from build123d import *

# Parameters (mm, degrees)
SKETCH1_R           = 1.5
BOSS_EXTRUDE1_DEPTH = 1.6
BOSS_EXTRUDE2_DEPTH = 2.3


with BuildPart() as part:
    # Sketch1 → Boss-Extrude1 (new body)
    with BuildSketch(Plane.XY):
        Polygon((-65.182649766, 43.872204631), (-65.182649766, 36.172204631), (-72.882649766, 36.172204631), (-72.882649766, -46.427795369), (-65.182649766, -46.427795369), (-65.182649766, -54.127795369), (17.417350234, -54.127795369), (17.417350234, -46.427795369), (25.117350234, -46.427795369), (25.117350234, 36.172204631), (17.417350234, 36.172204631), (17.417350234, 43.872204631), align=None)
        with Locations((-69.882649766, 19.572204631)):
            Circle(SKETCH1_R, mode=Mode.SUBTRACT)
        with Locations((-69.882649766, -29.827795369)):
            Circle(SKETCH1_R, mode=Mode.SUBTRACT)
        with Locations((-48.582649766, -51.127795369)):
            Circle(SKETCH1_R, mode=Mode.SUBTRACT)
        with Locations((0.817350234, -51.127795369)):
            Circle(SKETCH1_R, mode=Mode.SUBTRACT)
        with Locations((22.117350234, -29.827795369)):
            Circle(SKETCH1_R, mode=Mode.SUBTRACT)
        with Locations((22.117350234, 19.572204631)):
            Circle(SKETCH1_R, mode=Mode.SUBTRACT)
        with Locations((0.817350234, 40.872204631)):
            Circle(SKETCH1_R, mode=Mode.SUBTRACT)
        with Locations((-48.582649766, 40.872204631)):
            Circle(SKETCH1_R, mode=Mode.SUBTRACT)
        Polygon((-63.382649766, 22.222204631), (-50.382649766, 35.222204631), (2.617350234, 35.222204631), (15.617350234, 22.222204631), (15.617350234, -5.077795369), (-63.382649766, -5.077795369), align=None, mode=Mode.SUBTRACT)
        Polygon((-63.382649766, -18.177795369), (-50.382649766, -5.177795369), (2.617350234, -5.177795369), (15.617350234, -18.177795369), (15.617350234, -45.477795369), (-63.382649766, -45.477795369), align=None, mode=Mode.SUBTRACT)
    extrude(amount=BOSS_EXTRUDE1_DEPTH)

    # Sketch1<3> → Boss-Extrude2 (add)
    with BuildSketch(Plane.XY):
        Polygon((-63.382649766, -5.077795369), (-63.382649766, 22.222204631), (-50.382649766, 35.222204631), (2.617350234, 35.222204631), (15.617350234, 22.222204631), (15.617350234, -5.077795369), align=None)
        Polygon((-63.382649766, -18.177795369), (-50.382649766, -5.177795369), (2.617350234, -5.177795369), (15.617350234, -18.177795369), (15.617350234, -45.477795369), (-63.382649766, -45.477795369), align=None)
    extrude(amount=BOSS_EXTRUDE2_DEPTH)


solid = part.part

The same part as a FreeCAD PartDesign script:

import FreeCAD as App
import Part
import Sketcher

V = App.Vector

doc = App.newDocument("Part")
body = doc.addObject("PartDesign::Body", "Body")

# Sketch on XY plane
sketch1 = body.newObject("Sketcher::SketchObject", "Sketch")
sketch1.AttachmentSupport = (doc.getObject("XY_Plane"), [""])
sketch1.MapMode = "FlatFace"
sketch1.addGeometry(Part.LineSegment(V(-65.18265, 43.872205, 0), V(-65.18265, 36.172205, 0)), False)
sketch1.addGeometry(Part.LineSegment(V(-65.18265, 36.172205, 0), V(-72.88265, 36.172205, 0)), False)
sketch1.addGeometry(Part.LineSegment(V(-72.88265, 36.172205, 0), V(-72.88265, -46.427795, 0)), False)
sketch1.addGeometry(Part.LineSegment(V(-72.88265, -46.427795, 0), V(-65.18265, -46.427795, 0)), False)
sketch1.addGeometry(Part.LineSegment(V(-65.18265, -46.427795, 0), V(-65.18265, -54.127795, 0)), False)
sketch1.addGeometry(Part.LineSegment(V(-65.18265, -54.127795, 0), V(17.41735, -54.127795, 0)), False)
sketch1.addGeometry(Part.LineSegment(V(17.41735, -54.127795, 0), V(17.41735, -46.427795, 0)), False)
sketch1.addGeometry(Part.LineSegment(V(17.41735, -46.427795, 0), V(25.11735, -46.427795, 0)), False)
sketch1.addGeometry(Part.LineSegment(V(25.11735, -46.427795, 0), V(25.11735, 36.172205, 0)), False)
sketch1.addGeometry(Part.LineSegment(V(25.11735, 36.172205, 0), V(17.41735, 36.172205, 0)), False)
sketch1.addGeometry(Part.LineSegment(V(17.41735, 36.172205, 0), V(17.41735, 43.872205, 0)), False)
sketch1.addGeometry(Part.LineSegment(V(17.41735, 43.872205, 0), V(-65.18265, 43.872205, 0)), False)
sketch1.addGeometry(Part.Circle(V(-48.58265, -51.127795, 0), V(0, 0, 1), 1.5), False)
sketch1.addGeometry(Part.Circle(V(-69.88265, -29.827795, 0), V(0, 0, 1), 1.5), False)
sketch1.addGeometry(Part.Circle(V(0.81735, -51.127795, 0), V(0, 0, 1), 1.5), False)
sketch1.addGeometry(Part.Circle(V(22.11735, -29.827795, 0), V(0, 0, 1), 1.5), False)
sketch1.addGeometry(Part.LineSegment(V(-63.38265, -45.477795, 0), V(-63.38265, -18.177795, 0)), False)
sketch1.addGeometry(Part.LineSegment(V(-63.38265, -18.177795, 0), V(-50.38265, -5.177795, 0)), False)
sketch1.addGeometry(Part.LineSegment(V(-50.38265, -5.177795, 0), V(2.61735, -5.177795, 0)), False)
sketch1.addGeometry(Part.LineSegment(V(2.61735, -5.177795, 0), V(15.61735, -18.177795, 0)), False)
sketch1.addGeometry(Part.LineSegment(V(15.61735, -18.177795, 0), V(15.61735, -45.477795, 0)), False)
sketch1.addGeometry(Part.LineSegment(V(15.61735, -45.477795, 0), V(-63.38265, -45.477795, 0)), False)
sketch1.addGeometry(Part.Circle(V(-69.88265, 19.572205, 0), V(0, 0, 1), 1.5), False)
sketch1.addGeometry(Part.Circle(V(-48.58265, 40.872205, 0), V(0, 0, 1), 1.5), False)
sketch1.addGeometry(Part.LineSegment(V(-63.38265, -5.077795, 0), V(-63.38265, 22.222205, 0)), False)
sketch1.addGeometry(Part.LineSegment(V(-63.38265, 22.222205, 0), V(-50.38265, 35.222205, 0)), False)
sketch1.addGeometry(Part.LineSegment(V(-50.38265, 35.222205, 0), V(2.61735, 35.222205, 0)), False)
sketch1.addGeometry(Part.LineSegment(V(2.61735, 35.222205, 0), V(15.61735, 22.222205, 0)), False)
sketch1.addGeometry(Part.LineSegment(V(15.61735, 22.222205, 0), V(15.61735, -5.077795, 0)), False)
sketch1.addGeometry(Part.LineSegment(V(15.61735, -5.077795, 0), V(-63.38265, -5.077795, 0)), False)
sketch1.addGeometry(Part.Circle(V(22.11735, 19.572205, 0), V(0, 0, 1), 1.5), False)
sketch1.addGeometry(Part.Circle(V(0.81735, 40.872205, 0), V(0, 0, 1), 1.5), False)
sketch1.addConstraint(Sketcher.Constraint("Coincident", 0, 2, 1, 1))
sketch1.addConstraint(Sketcher.Constraint("Coincident", 1, 2, 2, 1))
sketch1.addConstraint(Sketcher.Constraint("Coincident", 2, 2, 3, 1))
sketch1.addConstraint(Sketcher.Constraint("Coincident", 3, 2, 4, 1))
sketch1.addConstraint(Sketcher.Constraint("Coincident", 4, 2, 5, 1))
sketch1.addConstraint(Sketcher.Constraint("Coincident", 5, 2, 6, 1))
sketch1.addConstraint(Sketcher.Constraint("Coincident", 6, 2, 7, 1))
sketch1.addConstraint(Sketcher.Constraint("Coincident", 7, 2, 8, 1))
sketch1.addConstraint(Sketcher.Constraint("Coincident", 8, 2, 9, 1))
sketch1.addConstraint(Sketcher.Constraint("Coincident", 9, 2, 10, 1))
sketch1.addConstraint(Sketcher.Constraint("Coincident", 10, 2, 11, 1))
sketch1.addConstraint(Sketcher.Constraint("Coincident", 11, 2, 0, 1))
sketch1.addConstraint(Sketcher.Constraint("Coincident", 16, 2, 17, 1))
sketch1.addConstraint(Sketcher.Constraint("Coincident", 17, 2, 18, 1))
sketch1.addConstraint(Sketcher.Constraint("Coincident", 18, 2, 19, 1))
sketch1.addConstraint(Sketcher.Constraint("Coincident", 19, 2, 20, 1))
sketch1.addConstraint(Sketcher.Constraint("Coincident", 20, 2, 21, 1))
sketch1.addConstraint(Sketcher.Constraint("Coincident", 21, 2, 16, 1))
sketch1.addConstraint(Sketcher.Constraint("Coincident", 24, 2, 25, 1))
sketch1.addConstraint(Sketcher.Constraint("Coincident", 25, 2, 26, 1))
sketch1.addConstraint(Sketcher.Constraint("Coincident", 26, 2, 27, 1))
sketch1.addConstraint(Sketcher.Constraint("Coincident", 27, 2, 28, 1))
sketch1.addConstraint(Sketcher.Constraint("Coincident", 28, 2, 29, 1))
sketch1.addConstraint(Sketcher.Constraint("Coincident", 29, 2, 24, 1))
sketch1.addConstraint(Sketcher.Constraint("Vertical", 0))
sketch1.addConstraint(Sketcher.Constraint("Horizontal", 1))
sketch1.addConstraint(Sketcher.Constraint("Vertical", 2))
sketch1.addConstraint(Sketcher.Constraint("Horizontal", 3))
sketch1.addConstraint(Sketcher.Constraint("Vertical", 4))
sketch1.addConstraint(Sketcher.Constraint("Horizontal", 5))
sketch1.addConstraint(Sketcher.Constraint("Vertical", 6))
sketch1.addConstraint(Sketcher.Constraint("Horizontal", 7))
sketch1.addConstraint(Sketcher.Constraint("Vertical", 8))
sketch1.addConstraint(Sketcher.Constraint("Horizontal", 9))
sketch1.addConstraint(Sketcher.Constraint("Vertical", 10))
sketch1.addConstraint(Sketcher.Constraint("Horizontal", 11))
sketch1.addConstraint(Sketcher.Constraint("Vertical", 16))
sketch1.addConstraint(Sketcher.Constraint("Horizontal", 18))
sketch1.addConstraint(Sketcher.Constraint("Vertical", 20))
sketch1.addConstraint(Sketcher.Constraint("Horizontal", 21))
sketch1.addConstraint(Sketcher.Constraint("Vertical", 24))
sketch1.addConstraint(Sketcher.Constraint("Horizontal", 26))
sketch1.addConstraint(Sketcher.Constraint("Vertical", 28))
sketch1.addConstraint(Sketcher.Constraint("Horizontal", 29))
sketch1.addConstraint(Sketcher.Constraint("Equal", 12, 13))
sketch1.addConstraint(Sketcher.Constraint("Equal", 13, 14))
sketch1.addConstraint(Sketcher.Constraint("Equal", 14, 15))
sketch1.addConstraint(Sketcher.Constraint("Equal", 15, 22))
sketch1.addConstraint(Sketcher.Constraint("Equal", 22, 23))
sketch1.addConstraint(Sketcher.Constraint("Equal", 23, 30))
sketch1.addConstraint(Sketcher.Constraint("Equal", 30, 31))
sketch1.addConstraint(Sketcher.Constraint("Perpendicular", 17, 19))
sketch1.addConstraint(Sketcher.Constraint("Perpendicular", 19, 25))
sketch1.addConstraint(Sketcher.Constraint("Perpendicular", 25, 27))
sketch1.addConstraint(Sketcher.Constraint("Horizontal", 12, 3, 14, 3))
sketch1.addConstraint(Sketcher.Constraint("Horizontal", 13, 3, 15, 3))
sketch1.addConstraint(Sketcher.Constraint("Horizontal", 22, 3, 30, 3))
sketch1.addConstraint(Sketcher.Constraint("Horizontal", 23, 3, 31, 3))
sketch1.addConstraint(Sketcher.Constraint("Horizontal", 3, 2, 6, 2))
sketch1.addConstraint(Sketcher.Constraint("Horizontal", 1, 2, 8, 2))
sketch1.addConstraint(Sketcher.Constraint("Horizontal", 16, 2, 19, 2))
sketch1.addConstraint(Sketcher.Constraint("Horizontal", 24, 2, 27, 2))
sketch1.addConstraint(Sketcher.Constraint("Vertical", 13, 3, 22, 3))
sketch1.addConstraint(Sketcher.Constraint("Vertical", 12, 3, 23, 3))
sketch1.addConstraint(Sketcher.Constraint("Vertical", 15, 3, 30, 3))
sketch1.addConstraint(Sketcher.Constraint("Vertical", 14, 3, 31, 3))
sketch1.addConstraint(Sketcher.Constraint("Vertical", 0, 2, 3, 2))
sketch1.addConstraint(Sketcher.Constraint("Vertical", 6, 2, 9, 2))
sketch1.addConstraint(Sketcher.Constraint("Vertical", 21, 2, 24, 2))
sketch1.addConstraint(Sketcher.Constraint("Vertical", 17, 2, 25, 2))
sketch1.addConstraint(Sketcher.Constraint("Vertical", 18, 2, 26, 2))
sketch1.addConstraint(Sketcher.Constraint("Equal", 3, 7))
sketch1.addConstraint(Sketcher.Constraint("Equal", 9, 0))
sketch1.addConstraint(Sketcher.Constraint("Equal", 11, 2))
sketch1.addConstraint(Sketcher.Constraint("Equal", 0, 4))
sketch1.addConstraint(Sketcher.Constraint("Equal", 20, 24))
sketch1.addConstraint(Sketcher.Constraint("Equal", 17, 19))
sketch1.addConstraint(Sketcher.Constraint("Diameter", 12, 3.0))
sketch1.addConstraint(Sketcher.Constraint("DistanceX", 18, 1, 18, 2, 53.0))
sketch1.addConstraint(Sketcher.Constraint("DistanceX", 21, 2, 21, 1, 79.0))
sketch1.addConstraint(Sketcher.Constraint("DistanceX", 1, 2, 1, 1, 7.7))
sketch1.addConstraint(Sketcher.Constraint("DistanceX", 5, 1, 5, 2, 82.6))
sketch1.addConstraint(Sketcher.Constraint("DistanceY", 16, 1, 16, 2, 27.3))
sketch1.addConstraint(Sketcher.Constraint("DistanceX", 13, 3, 15, 3, 92.0))
sketch1.addConstraint(Sketcher.Constraint("DistanceY", 12, 3, 23, 3, 92.0))
sketch1.addConstraint(Sketcher.Constraint("DistanceY", 13, 3, 0, 2, 66.0))
sketch1.addConstraint(Sketcher.Constraint("DistanceX", 0, 2, 31, 3, 66.0))
sketch1.addConstraint(Sketcher.Constraint("DistanceX", 1, 2, 22, 3, 3.0))
sketch1.addConstraint(Sketcher.Constraint("DistanceY", 2, 2, 22, 3, 66.0))
sketch1.addConstraint(Sketcher.Constraint("DistanceY", 4, 2, 12, 3, 3.0))
sketch1.addConstraint(Sketcher.Constraint("DistanceX", 12, 3, 5, 2, 66.0))
sketch1.addConstraint(Sketcher.Constraint("DistanceX", 13, 3, 16, 2, 6.5))
sketch1.addConstraint(Sketcher.Constraint("DistanceY", 18, 2, 28, 2, 0.1))
sketch1.addConstraint(Sketcher.Constraint("DistanceY", 13, 3, 16, 2, 11.65))
sketch1.addConstraint(Sketcher.Constraint("DistanceX", 12, 3, -1, 1, 48.58265))
sketch1.addConstraint(Sketcher.Constraint("DistanceY", 12, 3, -1, 1, 51.127795))
pad1 = body.newObject("PartDesign::Pad", "Pad")
pad1.Profile = sketch1
pad1.Length = 1.6

# Sketch on XY plane
sketch2 = body.newObject("Sketcher::SketchObject", "Sketch001")
sketch2.AttachmentSupport = (doc.getObject("XY_Plane"), [""])
sketch2.MapMode = "FlatFace"
sketch2.addGeometry(Part.LineSegment(V(-63.38265, 22.222205, 0), V(-63.38265, -5.077795, 0)), False)
sketch2.addGeometry(Part.LineSegment(V(-63.38265, -5.077795, 0), V(15.61735, -5.077795, 0)), False)
sketch2.addGeometry(Part.LineSegment(V(15.61735, -5.077795, 0), V(15.61735, 22.222205, 0)), False)
sketch2.addGeometry(Part.LineSegment(V(15.61735, 22.222205, 0), V(2.61735, 35.222205, 0)), False)
sketch2.addGeometry(Part.LineSegment(V(2.61735, 35.222205, 0), V(-50.38265, 35.222205, 0)), False)
sketch2.addGeometry(Part.LineSegment(V(-50.38265, 35.222205, 0), V(-63.38265, 22.222205, 0)), False)
sketch2.addGeometry(Part.LineSegment(V(-50.38265, -5.177795, 0), V(-63.38265, -18.177795, 0)), False)
sketch2.addGeometry(Part.LineSegment(V(-63.38265, -18.177795, 0), V(-63.38265, -45.477795, 0)), False)
sketch2.addGeometry(Part.LineSegment(V(-63.38265, -45.477795, 0), V(15.61735, -45.477795, 0)), False)
sketch2.addGeometry(Part.LineSegment(V(15.61735, -45.477795, 0), V(15.61735, -18.177795, 0)), False)
sketch2.addGeometry(Part.LineSegment(V(15.61735, -18.177795, 0), V(2.61735, -5.177795, 0)), False)
sketch2.addGeometry(Part.LineSegment(V(2.61735, -5.177795, 0), V(-50.38265, -5.177795, 0)), False)
sketch2.addConstraint(Sketcher.Constraint("Coincident", 0, 2, 1, 1))
sketch2.addConstraint(Sketcher.Constraint("Coincident", 1, 2, 2, 1))
sketch2.addConstraint(Sketcher.Constraint("Coincident", 2, 2, 3, 1))
sketch2.addConstraint(Sketcher.Constraint("Coincident", 3, 2, 4, 1))
sketch2.addConstraint(Sketcher.Constraint("Coincident", 4, 2, 5, 1))
sketch2.addConstraint(Sketcher.Constraint("Coincident", 5, 2, 0, 1))
sketch2.addConstraint(Sketcher.Constraint("Coincident", 6, 2, 7, 1))
sketch2.addConstraint(Sketcher.Constraint("Coincident", 7, 2, 8, 1))
sketch2.addConstraint(Sketcher.Constraint("Coincident", 8, 2, 9, 1))
sketch2.addConstraint(Sketcher.Constraint("Coincident", 9, 2, 10, 1))
sketch2.addConstraint(Sketcher.Constraint("Coincident", 10, 2, 11, 1))
sketch2.addConstraint(Sketcher.Constraint("Coincident", 11, 2, 6, 1))
sketch2.addConstraint(Sketcher.Constraint("Vertical", 0))
sketch2.addConstraint(Sketcher.Constraint("Horizontal", 1))
sketch2.addConstraint(Sketcher.Constraint("Vertical", 2))
sketch2.addConstraint(Sketcher.Constraint("Horizontal", 4))
sketch2.addConstraint(Sketcher.Constraint("Vertical", 7))
sketch2.addConstraint(Sketcher.Constraint("Horizontal", 8))
sketch2.addConstraint(Sketcher.Constraint("Vertical", 9))
sketch2.addConstraint(Sketcher.Constraint("Horizontal", 11))
sketch2.addConstraint(Sketcher.Constraint("Perpendicular", 3, 5))
sketch2.addConstraint(Sketcher.Constraint("Parallel", 5, 6))
sketch2.addConstraint(Sketcher.Constraint("Perpendicular", 6, 10))
sketch2.addConstraint(Sketcher.Constraint("Horizontal", 2, 2, 5, 2))
sketch2.addConstraint(Sketcher.Constraint("Horizontal", 6, 2, 9, 2))
sketch2.addConstraint(Sketcher.Constraint("Vertical", 5, 2, 6, 2))
sketch2.addConstraint(Sketcher.Constraint("Vertical", 2, 2, 8, 2))
sketch2.addConstraint(Sketcher.Constraint("Vertical", 3, 2, 10, 2))
sketch2.addConstraint(Sketcher.Constraint("Equal", 2, 7))
sketch2.addConstraint(Sketcher.Constraint("Equal", 3, 5))
sketch2.addConstraint(Sketcher.Constraint("DistanceX", 1, 1, 1, 2, 79.0))
sketch2.addConstraint(Sketcher.Constraint("DistanceX", 4, 2, 4, 1, 53.0))
sketch2.addConstraint(Sketcher.Constraint("DistanceY", 0, 2, 0, 1, 27.3))
sketch2.addConstraint(Sketcher.Constraint("DistanceY", 6, 2, 0, 2, 13.1))
sketch2.addConstraint(Sketcher.Constraint("DistanceX", 0, 2, -1, 1, 63.38265))
sketch2.addConstraint(Sketcher.Constraint("DistanceY", 0, 2, -1, 1, 5.077795))
pad2 = body.newObject("PartDesign::Pad", "Pad001")
pad2.Profile = sketch2
pad2.Length = 2.3

doc.recompute()
